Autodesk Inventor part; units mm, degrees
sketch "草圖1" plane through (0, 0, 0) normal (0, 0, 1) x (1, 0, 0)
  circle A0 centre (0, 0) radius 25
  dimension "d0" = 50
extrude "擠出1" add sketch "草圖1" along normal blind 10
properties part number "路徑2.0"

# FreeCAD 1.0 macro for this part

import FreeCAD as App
import Part
import Sketcher

V = App.Vector

doc = App.newDocument("Part")
body = doc.addObject("PartDesign::Body", "Body")

# Sketch on XY plane
sketch1 = body.newObject("Sketcher::SketchObject", "Sketch")
sketch1.AttachmentSupport = (doc.getObject("XY_Plane"), [""])
sketch1.MapMode = "FlatFace"
sketch1.addGeometry(Part.Circle(V(0, 0, 0), V(0, 0, 1), 25), False)
sketch1.addConstraint([
    Sketcher.Constraint("Coincident", 0, 3, -1, 1),
    Sketcher.Constraint("Diameter", 0, 50.0),
])
pad1 = body.newObject("PartDesign::Pad", "Pad")
pad1.Profile = sketch1
pad1.Length = 10

doc.recompute()
